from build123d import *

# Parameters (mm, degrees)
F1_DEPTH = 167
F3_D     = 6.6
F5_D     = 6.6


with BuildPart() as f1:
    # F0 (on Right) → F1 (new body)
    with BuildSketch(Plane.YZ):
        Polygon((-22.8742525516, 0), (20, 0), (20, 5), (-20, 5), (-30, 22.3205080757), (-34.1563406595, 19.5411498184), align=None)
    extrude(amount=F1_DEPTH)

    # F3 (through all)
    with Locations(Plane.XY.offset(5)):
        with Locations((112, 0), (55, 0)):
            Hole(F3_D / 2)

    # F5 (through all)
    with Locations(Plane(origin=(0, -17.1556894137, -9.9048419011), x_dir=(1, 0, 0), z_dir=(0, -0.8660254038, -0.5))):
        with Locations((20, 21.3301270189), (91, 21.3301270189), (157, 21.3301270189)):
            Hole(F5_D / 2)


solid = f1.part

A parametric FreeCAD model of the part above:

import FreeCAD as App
import Part
import Sketcher

V = App.Vector
Q = App.Units.Quantity


def add_polygon(sketch, points):
    """Adds a closed chain of lines whose ends are joined by coincident constraints."""
    first, n = sketch.GeometryCount, len(points)
    for a, b in zip(points, points[1:] + points[:1]):
        sketch.addGeometry(Part.LineSegment(App.Vector(*a, 0), App.Vector(*b, 0)), False)
    for i in range(n):
        sketch.addConstraint(Sketcher.Constraint("Coincident", first + i, 2, first + (i + 1) % n, 1))

doc = App.newDocument("Part")
body = doc.addObject("PartDesign::Body", "Body")

# Sketch on YZ plane
sketch1 = body.newObject("Sketcher::SketchObject", "Sketch")
sketch1.AttachmentSupport = (doc.getObject("YZ_Plane"), [""])
sketch1.MapMode = "FlatFace"
add_polygon(sketch1, [(-22.874253, 0), (20, 0), (20, 5), (-20, 5), (-30, 22.320508), (-34.156341, 19.54115)])  # lines 0-5
sketch1.addConstraint([
    Sketcher.Constraint("Horizontal", 0),
    Sketcher.Constraint("Vertical", 1),
    Sketcher.Constraint("Horizontal", 2),
    Sketcher.Constraint("PointOnObject", 0, 2, -1),
    Sketcher.Constraint("Parallel", 3, 5),
    Sketcher.Constraint("DistanceX", 2, 2, 2, 1, 40.0),
    Sketcher.Constraint("DistanceY", 1, 1, 1, 2, 5.0),
    Sketcher.Constraint("Angle", 3, Q("120 deg")),
    Sketcher.Constraint("Distance", 3, 20.0),
    Sketcher.Constraint("Distance", 4, 5.0),
    Sketcher.Constraint("DistanceX", -1, 1, 0, 2, 20.0),
    Sketcher.Constraint("DistanceX", 0, 1, 0, 2, 42.874253),
])
pad1 = body.newObject("PartDesign::Pad", "Pad")
pad1.Profile = sketch1
pad1.Length = 167

# Sketch on XY plane
sketch2 = body.newObject("Sketcher::SketchObject", "Sketch001")
sketch2.AttachmentSupport = (doc.getObject("XY_Plane"), [""])
sketch2.MapMode = "FlatFace"
sketch2.AttachmentOffset = App.Placement(V(0, 0, 5), App.Rotation())
sketch2.addGeometry([
    Part.Circle(V(112, 0, 0), V(0, 0, 1), 3.3),
    Part.Circle(V(55, 0, 0), V(0, 0, 1), 3.3),
], False)
sketch2.addConstraint([
    Sketcher.Constraint("Equal", 0, 1),
    Sketcher.Constraint("PointOnObject", 0, 3, -1),
    Sketcher.Constraint("PointOnObject", 1, 3, -1),
    Sketcher.Constraint("Diameter", 0, 6.6),
    Sketcher.Constraint("DistanceX", -1, 1, 0, 3, 112.0),
    Sketcher.Constraint("DistanceX", -1, 1, 1, 3, 55.0),
])
doc.recompute()
hole = body.newObject("PartDesign::Hole", "Hole")
hole.Profile = sketch2
hole.ThreadType = "None"
hole.Diameter = 6.6
hole.DepthType = "ThroughAll"

# Sketch on an angled plane
sketch3 = body.newObject("Sketcher::SketchObject", "Sketch002")
sketch3.Placement = App.Placement(V(0, -17.155689, -9.904842), App.Rotation(V(1, 0, 0), V(0, -0.5, 0.866025404), V(0, -0.866025404, -0.5), "ZXY"))
sketch3.addGeometry([
    Part.Circle(V(20, 21.3, 0), V(0, 0, 1), 3.3),
    Part.Circle(V(91, 21.3, 0), V(0, 0, 1), 3.3),
    Part.Circle(V(157, 21.3, 0), V(0, 0, 1), 3.3),
], False)
sketch3.addConstraint([
    Sketcher.Constraint("Equal", 0, 1),
    Sketcher.Constraint("Equal", 1, 2),
    Sketcher.Constraint("Horizontal", 0, 3, 1, 3),
    Sketcher.Constraint("Horizontal", 1, 3, 2, 3),
    Sketcher.Constraint("Diameter", 0, 6.6),
    Sketcher.Constraint("DistanceX", -1, 1, 0, 3, 20.0),
    Sketcher.Constraint("DistanceX", -1, 1, 1, 3, 91.0),
    Sketcher.Constraint("DistanceX", -1, 1, 2, 3, 157.0),
    Sketcher.Constraint("DistanceY", -1, 1, 0, 3, 21.330127),
])
doc.recompute()
hole2 = body.newObject("PartDesign::Hole", "Hole001")
hole2.Profile = sketch3
hole2.ThreadType = "None"
hole2.Diameter = 6.6
hole2.DepthType = "ThroughAll"

doc.recompute()
